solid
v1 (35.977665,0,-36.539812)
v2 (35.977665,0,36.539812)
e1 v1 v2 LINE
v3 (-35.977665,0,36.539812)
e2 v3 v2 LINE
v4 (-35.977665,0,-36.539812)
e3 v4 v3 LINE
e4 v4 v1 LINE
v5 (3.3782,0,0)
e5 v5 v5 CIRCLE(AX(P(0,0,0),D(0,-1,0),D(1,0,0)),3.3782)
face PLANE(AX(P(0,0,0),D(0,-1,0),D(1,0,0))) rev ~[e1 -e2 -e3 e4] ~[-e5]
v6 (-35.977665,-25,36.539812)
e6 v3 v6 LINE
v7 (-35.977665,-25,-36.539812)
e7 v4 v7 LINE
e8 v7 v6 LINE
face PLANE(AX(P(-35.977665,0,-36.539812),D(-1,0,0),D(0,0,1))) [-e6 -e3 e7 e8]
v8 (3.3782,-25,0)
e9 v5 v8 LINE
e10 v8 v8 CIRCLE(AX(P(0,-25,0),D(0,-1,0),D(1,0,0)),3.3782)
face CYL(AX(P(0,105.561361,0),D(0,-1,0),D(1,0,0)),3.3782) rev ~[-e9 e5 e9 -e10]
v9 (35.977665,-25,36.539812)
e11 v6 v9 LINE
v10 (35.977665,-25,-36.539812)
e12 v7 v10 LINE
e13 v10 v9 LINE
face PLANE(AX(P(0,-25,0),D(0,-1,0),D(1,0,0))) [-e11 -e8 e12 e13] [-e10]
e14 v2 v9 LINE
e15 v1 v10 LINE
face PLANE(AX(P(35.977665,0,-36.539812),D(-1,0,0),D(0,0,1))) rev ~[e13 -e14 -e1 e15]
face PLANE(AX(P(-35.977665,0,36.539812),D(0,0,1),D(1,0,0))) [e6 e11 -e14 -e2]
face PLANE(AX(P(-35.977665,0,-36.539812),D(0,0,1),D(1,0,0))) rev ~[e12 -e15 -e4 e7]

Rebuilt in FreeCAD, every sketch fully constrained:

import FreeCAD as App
import Part
import Sketcher

doc = App.newDocument("Part")
body = doc.addObject("PartDesign::Body", "Body")

sketch1 = body.newObject("Sketcher::SketchObject", "Sketch")
sketch1.AttachmentSupport = (doc.getObject("XZ_Plane"), [""])
sketch1.MapMode = "FlatFace"
sketch1.addGeometry([
    Part.LineSegment(App.Vector(-35.977665, 36.539812, 0), App.Vector(-35.977665, -36.539812, 0)),
    Part.LineSegment(App.Vector(-35.977665, -36.539812, 0), App.Vector(35.977665, -36.539812, 0)),
    Part.LineSegment(App.Vector(35.977665, -36.539812, 0), App.Vector(35.977665, 36.539812, 0)),
    Part.LineSegment(App.Vector(35.977665, 36.539812, 0), App.Vector(-35.977665, 36.539812, 0)),
], False)
sketch1.addConstraint([
    Sketcher.Constraint("Coincident", 0, 2, 1, 1),
    Sketcher.Constraint("Coincident", 1, 2, 2, 1),
    Sketcher.Constraint("Coincident", 2, 2, 3, 1),
    Sketcher.Constraint("Coincident", 3, 2, 0, 1),
    Sketcher.Constraint("Vertical", 0),
    Sketcher.Constraint("Horizontal", 1),
    Sketcher.Constraint("Vertical", 2),
    Sketcher.Constraint("Horizontal", 3),
    Sketcher.Constraint("Symmetric", 0, 2, 2, 2, -1, 1),
    Sketcher.Constraint("DistanceX", 1, 1, 1, 2, 71.955331),
    Sketcher.Constraint("DistanceY", 0, 2, 0, 1, 73.079623),
])
pad1 = body.newObject("PartDesign::Pad", "Pad")
pad1.Profile = sketch1
pad1.Length = 25

sketch2 = body.newObject("Sketcher::SketchObject", "Sketch001")
sketch2.AttachmentSupport = (doc.getObject("XZ_Plane"), [""])
sketch2.MapMode = "FlatFace"
sketch2.addGeometry(Part.Circle(App.Vector(0, 0, 0), App.Vector(0, 0, 1), 3.3782), False)
sketch2.addConstraint([
    Sketcher.Constraint("Coincident", 0, 3, -1, 1),
    Sketcher.Constraint("Diameter", 0, 6.7564),
])
doc.recompute()
hole = body.newObject("PartDesign::Hole", "Hole")
hole.Profile = sketch2
hole.ThreadType = "None"
hole.Diameter = 6.7564
hole.DepthType = "ThroughAll"
hole.Reversed = True

doc.recompute()
